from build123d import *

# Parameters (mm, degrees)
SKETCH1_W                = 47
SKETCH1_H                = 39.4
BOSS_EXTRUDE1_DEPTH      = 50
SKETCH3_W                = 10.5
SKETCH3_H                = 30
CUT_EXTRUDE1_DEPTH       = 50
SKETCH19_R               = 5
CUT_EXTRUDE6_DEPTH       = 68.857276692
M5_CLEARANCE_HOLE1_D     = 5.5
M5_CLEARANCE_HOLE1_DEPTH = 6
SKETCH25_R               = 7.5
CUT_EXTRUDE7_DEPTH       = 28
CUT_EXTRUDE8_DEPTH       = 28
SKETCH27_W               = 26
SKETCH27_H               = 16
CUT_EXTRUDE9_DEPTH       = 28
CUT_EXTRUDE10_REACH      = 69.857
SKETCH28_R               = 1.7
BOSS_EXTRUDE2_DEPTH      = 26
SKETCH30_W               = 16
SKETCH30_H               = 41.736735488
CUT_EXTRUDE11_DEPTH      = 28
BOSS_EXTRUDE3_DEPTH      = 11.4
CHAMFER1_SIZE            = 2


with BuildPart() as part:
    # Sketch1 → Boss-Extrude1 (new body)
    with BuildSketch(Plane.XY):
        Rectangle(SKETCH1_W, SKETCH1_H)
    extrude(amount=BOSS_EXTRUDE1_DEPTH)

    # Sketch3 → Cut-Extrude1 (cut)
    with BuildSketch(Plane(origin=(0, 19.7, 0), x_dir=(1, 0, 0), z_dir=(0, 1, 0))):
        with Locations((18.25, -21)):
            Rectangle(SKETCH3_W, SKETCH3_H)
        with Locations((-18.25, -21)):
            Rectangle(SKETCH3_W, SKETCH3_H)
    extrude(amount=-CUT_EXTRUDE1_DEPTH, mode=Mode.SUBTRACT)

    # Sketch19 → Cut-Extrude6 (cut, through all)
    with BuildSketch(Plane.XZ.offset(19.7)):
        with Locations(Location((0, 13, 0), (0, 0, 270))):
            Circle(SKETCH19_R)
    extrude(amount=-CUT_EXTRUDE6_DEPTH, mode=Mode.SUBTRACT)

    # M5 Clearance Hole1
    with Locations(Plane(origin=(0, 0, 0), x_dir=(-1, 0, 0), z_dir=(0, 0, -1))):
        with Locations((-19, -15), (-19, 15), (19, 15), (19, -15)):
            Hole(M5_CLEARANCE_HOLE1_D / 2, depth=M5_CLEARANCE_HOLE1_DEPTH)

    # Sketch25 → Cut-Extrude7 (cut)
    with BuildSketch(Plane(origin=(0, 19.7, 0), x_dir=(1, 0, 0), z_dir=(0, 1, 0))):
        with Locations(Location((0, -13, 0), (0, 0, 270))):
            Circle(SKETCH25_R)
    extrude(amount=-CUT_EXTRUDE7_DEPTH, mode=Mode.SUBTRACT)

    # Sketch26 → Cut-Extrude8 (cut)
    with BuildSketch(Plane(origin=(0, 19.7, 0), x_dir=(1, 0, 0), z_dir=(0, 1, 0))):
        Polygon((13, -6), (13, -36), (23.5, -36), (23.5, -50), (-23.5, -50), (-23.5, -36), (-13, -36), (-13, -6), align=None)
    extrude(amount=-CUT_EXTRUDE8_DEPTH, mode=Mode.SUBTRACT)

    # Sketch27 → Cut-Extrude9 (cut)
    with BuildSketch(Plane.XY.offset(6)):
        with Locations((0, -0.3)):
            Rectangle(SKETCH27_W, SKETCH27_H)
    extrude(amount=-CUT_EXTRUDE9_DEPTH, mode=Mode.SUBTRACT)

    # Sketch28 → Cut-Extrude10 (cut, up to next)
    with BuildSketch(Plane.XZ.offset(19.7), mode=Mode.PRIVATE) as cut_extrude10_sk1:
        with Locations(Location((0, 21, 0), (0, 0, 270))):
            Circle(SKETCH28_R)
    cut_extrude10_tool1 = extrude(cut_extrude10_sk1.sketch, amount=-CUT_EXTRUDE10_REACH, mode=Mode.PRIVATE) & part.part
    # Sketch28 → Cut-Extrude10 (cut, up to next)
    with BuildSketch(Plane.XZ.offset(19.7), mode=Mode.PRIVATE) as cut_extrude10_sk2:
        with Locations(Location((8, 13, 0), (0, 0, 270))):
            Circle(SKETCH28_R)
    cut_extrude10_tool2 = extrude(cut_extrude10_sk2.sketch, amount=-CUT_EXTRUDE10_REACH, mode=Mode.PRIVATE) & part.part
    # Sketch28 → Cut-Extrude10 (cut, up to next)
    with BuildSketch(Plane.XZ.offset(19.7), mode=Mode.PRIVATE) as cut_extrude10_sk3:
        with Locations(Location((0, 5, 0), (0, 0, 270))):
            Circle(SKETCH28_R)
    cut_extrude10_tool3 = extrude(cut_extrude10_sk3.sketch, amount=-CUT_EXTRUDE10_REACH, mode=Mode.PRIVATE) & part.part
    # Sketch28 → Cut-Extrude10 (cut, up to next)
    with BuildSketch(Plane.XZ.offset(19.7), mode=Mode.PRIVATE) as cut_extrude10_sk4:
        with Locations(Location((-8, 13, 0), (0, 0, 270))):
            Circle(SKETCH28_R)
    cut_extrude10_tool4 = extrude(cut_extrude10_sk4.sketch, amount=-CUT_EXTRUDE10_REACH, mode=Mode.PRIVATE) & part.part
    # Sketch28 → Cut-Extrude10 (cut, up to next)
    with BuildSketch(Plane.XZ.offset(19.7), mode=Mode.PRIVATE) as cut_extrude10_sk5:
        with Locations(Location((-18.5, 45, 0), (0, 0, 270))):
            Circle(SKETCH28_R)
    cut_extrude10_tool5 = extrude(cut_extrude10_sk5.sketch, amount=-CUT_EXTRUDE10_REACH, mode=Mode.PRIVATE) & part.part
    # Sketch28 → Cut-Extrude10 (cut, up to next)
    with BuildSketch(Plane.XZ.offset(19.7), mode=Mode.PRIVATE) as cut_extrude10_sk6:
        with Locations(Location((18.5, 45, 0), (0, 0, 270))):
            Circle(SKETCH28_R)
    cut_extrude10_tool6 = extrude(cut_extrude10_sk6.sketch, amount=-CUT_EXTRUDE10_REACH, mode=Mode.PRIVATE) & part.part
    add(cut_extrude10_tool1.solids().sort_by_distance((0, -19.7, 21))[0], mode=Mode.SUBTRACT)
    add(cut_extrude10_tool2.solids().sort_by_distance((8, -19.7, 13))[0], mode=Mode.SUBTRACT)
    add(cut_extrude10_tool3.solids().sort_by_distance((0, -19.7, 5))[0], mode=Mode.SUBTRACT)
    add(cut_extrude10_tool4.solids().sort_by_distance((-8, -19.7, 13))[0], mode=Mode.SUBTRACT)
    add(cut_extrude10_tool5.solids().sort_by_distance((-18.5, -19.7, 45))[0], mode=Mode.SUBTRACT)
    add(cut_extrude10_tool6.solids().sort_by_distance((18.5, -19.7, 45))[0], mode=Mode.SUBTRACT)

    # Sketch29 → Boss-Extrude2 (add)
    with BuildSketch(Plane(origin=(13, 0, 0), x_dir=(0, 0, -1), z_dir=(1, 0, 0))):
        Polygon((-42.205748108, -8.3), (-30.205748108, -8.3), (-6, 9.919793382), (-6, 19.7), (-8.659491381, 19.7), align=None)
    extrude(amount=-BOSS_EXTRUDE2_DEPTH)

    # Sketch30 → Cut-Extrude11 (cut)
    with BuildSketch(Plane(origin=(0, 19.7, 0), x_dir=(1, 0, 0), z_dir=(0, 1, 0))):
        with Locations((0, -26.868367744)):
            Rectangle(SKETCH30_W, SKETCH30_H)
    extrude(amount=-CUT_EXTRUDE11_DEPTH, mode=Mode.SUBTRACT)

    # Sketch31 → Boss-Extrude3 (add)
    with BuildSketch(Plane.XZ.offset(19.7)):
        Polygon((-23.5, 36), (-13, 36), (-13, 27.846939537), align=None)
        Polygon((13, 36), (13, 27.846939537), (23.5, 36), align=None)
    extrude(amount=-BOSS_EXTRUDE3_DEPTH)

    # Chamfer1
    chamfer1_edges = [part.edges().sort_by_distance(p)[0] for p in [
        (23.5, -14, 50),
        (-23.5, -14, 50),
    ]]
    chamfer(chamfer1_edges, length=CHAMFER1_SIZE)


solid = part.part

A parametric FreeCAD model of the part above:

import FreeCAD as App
import Part
import Sketcher
Q = App.Units.Quantity


def edges_at(feature, points):
    """Names of the edges that pass closest to the given points."""
    edges = feature.Shape.Edges
    near = lambda p: min(range(len(edges)), key=lambda i: edges[i].distToShape(Part.Vertex(*p))[0])
    return sorted({f"Edge{near(p) + 1}" for p in points})


def add_polygon(sketch, points):
    """Adds a closed chain of lines whose ends are joined by coincident constraints."""
    first, n = sketch.GeometryCount, len(points)
    for a, b in zip(points, points[1:] + points[:1]):
        sketch.addGeometry(Part.LineSegment(App.Vector(*a, 0), App.Vector(*b, 0)), False)
    for i in range(n):
        sketch.addConstraint(Sketcher.Constraint("Coincident", first + i, 2, first + (i + 1) % n, 1))

doc = App.newDocument("Part")
body = doc.addObject("PartDesign::Body", "Body")

# Sketch on XY plane
sketch1 = body.newObject("Sketcher::SketchObject", "Sketch")
sketch1.AttachmentSupport = (doc.getObject("XY_Plane"), [""])
sketch1.MapMode = "FlatFace"
add_polygon(sketch1, [(-24, 20), (-24, -20), (24, -20), (24, 20)])  # lines 0-3
sketch1.addConstraint(Sketcher.Constraint("Vertical", 0))
sketch1.addConstraint(Sketcher.Constraint("Horizontal", 1))
sketch1.addConstraint(Sketcher.Constraint("Vertical", 2))
sketch1.addConstraint(Sketcher.Constraint("Horizontal", 3))
sketch1.addConstraint(Sketcher.Constraint("Symmetric", 0, 2, 2, 2, -1, 1))
sketch1.addConstraint(Sketcher.Constraint("DistanceX", 1, 1, 1, 2, Q("47 mm")))
sketch1.addConstraint(Sketcher.Constraint("DistanceY", 0, 2, 0, 1, Q("39.4 mm")))
pad1 = body.newObject("PartDesign::Pad", "Pad")
pad1.Profile = sketch1
pad1.Length = 50

# Sketch on XZ plane
sketch2 = body.newObject("Sketcher::SketchObject", "Sketch001")
sketch2.AttachmentSupport = (doc.getObject("XZ_Plane"), [""])
sketch2.MapMode = "FlatFace"
sketch2.AttachmentOffset = App.Placement(App.Vector(0, 0, -19.7), App.Rotation())
add_polygon(sketch2, [(13, 6), (13, 36), (24, 36), (24, 6)])  # lines 0-3
add_polygon(sketch2, [(-24, 6), (-24, 36), (-13, 36), (-13, 6)])  # lines 4-7
sketch2.addConstraint(Sketcher.Constraint("Vertical", 0))
sketch2.addConstraint(Sketcher.Constraint("Horizontal", 1))
sketch2.addConstraint(Sketcher.Constraint("Vertical", 2))
sketch2.addConstraint(Sketcher.Constraint("Horizontal", 3))
sketch2.addConstraint(Sketcher.Constraint("Vertical", 4))
sketch2.addConstraint(Sketcher.Constraint("Horizontal", 5))
sketch2.addConstraint(Sketcher.Constraint("Vertical", 6))
sketch2.addConstraint(Sketcher.Constraint("Horizontal", 7))
sketch2.addConstraint(Sketcher.Constraint("Symmetric", 1, 2, 4, 2, -2))
sketch2.addConstraint(Sketcher.Constraint("Symmetric", 3, 2, 6, 2, -2))
sketch2.addConstraint(Sketcher.Constraint("DistanceY", 0, 1, 0, 2, Q("30 mm")))
sketch2.addConstraint(Sketcher.Constraint("DistanceX", 1, 1, 1, 2, Q("10.5 mm")))
sketch2.addConstraint(Sketcher.Constraint("DistanceX", -1, 1, 0, 2, Q("13 mm")))
sketch2.addConstraint(Sketcher.Constraint("DistanceY", -1, 1, 0, 2, Q("36 mm")))
pocket1 = body.newObject("PartDesign::Pocket", "Pocket")
pocket1.Profile = sketch2
pocket1.Length = 50
pocket1.Reversed = True

# Sketch on XZ plane
sketch3 = body.newObject("Sketcher::SketchObject", "Sketch002")
sketch3.AttachmentSupport = (doc.getObject("XZ_Plane"), [""])
sketch3.MapMode = "FlatFace"
sketch3.AttachmentOffset = App.Placement(App.Vector(0, 0, 19.7), App.Rotation())
sketch3.addGeometry(Part.Circle(App.Vector(0, 13, 0), App.Vector(0, 0, 1), 5), False)
sketch3.addConstraint(Sketcher.Constraint("PointOnObject", 0, 3, -2))
sketch3.addConstraint(Sketcher.Constraint("Diameter", 0, Q("10 mm")))
sketch3.addConstraint(Sketcher.Constraint("DistanceY", -1, 1, 0, 3, Q("13 mm")))
pocket2 = body.newObject("PartDesign::Pocket", "Pocket001")
pocket2.Profile = sketch3
pocket2.Type = "ThroughAll"

# Sketch on XY plane
sketch4 = body.newObject("Sketcher::SketchObject", "Sketch003")
sketch4.AttachmentSupport = (doc.getObject("XY_Plane"), [""])
sketch4.MapMode = "FlatFace"
sketch4.addGeometry(Part.Circle(App.Vector(19, -15, 0), App.Vector(0, 0, 1), 2.8), False)
sketch4.addGeometry(Part.Circle(App.Vector(19, 15, 0), App.Vector(0, 0, 1), 2.8), False)
sketch4.addGeometry(Part.Circle(App.Vector(-19, 15, 0), App.Vector(0, 0, 1), 2.8), False)
sketch4.addGeometry(Part.Circle(App.Vector(-19, -15, 0), App.Vector(0, 0, 1), 2.8), False)
sketch4.addConstraint(Sketcher.Constraint("Equal", 0, 1))
sketch4.addConstraint(Sketcher.Constraint("Equal", 1, 2))
sketch4.addConstraint(Sketcher.Constraint("Equal", 2, 3))
sketch4.addConstraint(Sketcher.Constraint("Symmetric", 0, 3, 2, 3, -1, 1))
sketch4.addConstraint(Sketcher.Constraint("Symmetric", 1, 3, 3, 3, -1, 1))
sketch4.addConstraint(Sketcher.Constraint("Symmetric", 1, 3, 2, 3, -2))
sketch4.addConstraint(Sketcher.Constraint("Diameter", 0, Q("5.5 mm")))
sketch4.addConstraint(Sketcher.Constraint("DistanceX", -1, 1, 0, 3, Q("19 mm")))
sketch4.addConstraint(Sketcher.Constraint("DistanceY", 0, 3, -1, 1, Q("15 mm")))
doc.recompute()
hole = body.newObject("PartDesign::Hole", "Hole")
hole.Profile = sketch4
hole.ThreadType = "None"
hole.Diameter = 5.5
hole.DepthType = "Dimension"
hole.Depth = 6
hole.DrillPoint = "Flat"
hole.Reversed = True

# Sketch on XZ plane
sketch5 = body.newObject("Sketcher::SketchObject", "Sketch004")
sketch5.AttachmentSupport = (doc.getObject("XZ_Plane"), [""])
sketch5.MapMode = "FlatFace"
sketch5.AttachmentOffset = App.Placement(App.Vector(0, 0, -19.7), App.Rotation())
sketch5.addGeometry(Part.Circle(App.Vector(0, 13, 0), App.Vector(0, 0, 1), 8), False)
sketch5.addConstraint(Sketcher.Constraint("PointOnObject", 0, 3, -2))
sketch5.addConstraint(Sketcher.Constraint("Diameter", 0, Q("15 mm")))
sketch5.addConstraint(Sketcher.Constraint("DistanceY", -1, 1, 0, 3, Q("13 mm")))
pocket3 = body.newObject("PartDesign::Pocket", "Pocket002")
pocket3.Profile = sketch5
pocket3.Length = 28
pocket3.Reversed = True

# Sketch on XZ plane
sketch6 = body.newObject("Sketcher::SketchObject", "Sketch005")
sketch6.AttachmentSupport = (doc.getObject("XZ_Plane"), [""])
sketch6.MapMode = "FlatFace"
sketch6.AttachmentOffset = App.Placement(App.Vector(0, 0, -19.7), App.Rotation())
add_polygon(sketch6, [(13, 36), (13, 6), (-13, 6), (-13, 36), (-24, 36), (-24, 50), (24, 50), (24, 36)])  # lines 0-7
sketch6.addConstraint(Sketcher.Constraint("Vertical", 0))
sketch6.addConstraint(Sketcher.Constraint("Horizontal", 1))
sketch6.addConstraint(Sketcher.Constraint("Vertical", 2))
sketch6.addConstraint(Sketcher.Constraint("Horizontal", 3))
sketch6.addConstraint(Sketcher.Constraint("Vertical", 4))
sketch6.addConstraint(Sketcher.Constraint("Horizontal", 5))
sketch6.addConstraint(Sketcher.Constraint("Vertical", 6))
sketch6.addConstraint(Sketcher.Constraint("Horizontal", 7))
sketch6.addConstraint(Sketcher.Constraint("Symmetric", 3, 2, 6, 2, -2))
sketch6.addConstraint(Sketcher.Constraint("Equal", 3, 7))
sketch6.addConstraint(Sketcher.Constraint("DistanceX", 1, 2, 1, 1, Q("26 mm")))
sketch6.addConstraint(Sketcher.Constraint("DistanceX", 5, 1, 5, 2, Q("47 mm")))
sketch6.addConstraint(Sketcher.Constraint("DistanceY", 0, 2, 0, 1, Q("30 mm")))
sketch6.addConstraint(Sketcher.Constraint("DistanceY", 4, 1, 4, 2, Q("14 mm")))
sketch6.addConstraint(Sketcher.Constraint("DistanceY", -1, 1, 0, 2, Q("6 mm")))
pocket4 = body.newObject("PartDesign::Pocket", "Pocket003")
pocket4.Profile = sketch6
pocket4.Length = 28
pocket4.Reversed = True

# Sketch on XY plane
sketch7 = body.newObject("Sketcher::SketchObject", "Sketch006")
sketch7.AttachmentSupport = (doc.getObject("XY_Plane"), [""])
sketch7.MapMode = "FlatFace"
sketch7.AttachmentOffset = App.Placement(App.Vector(0, 0, 6), App.Rotation())
add_polygon(sketch7, [(-13, 8), (-13, -8), (13, -8), (13, 8)])  # lines 0-3
sketch7.addConstraint(Sketcher.Constraint("Vertical", 0))
sketch7.addConstraint(Sketcher.Constraint("Horizontal", 1))
sketch7.addConstraint(Sketcher.Constraint("Vertical", 2))
sketch7.addConstraint(Sketcher.Constraint("Horizontal", 3))
sketch7.addConstraint(Sketcher.Constraint("DistanceX", 1, 1, 1, 2, Q("26 mm")))
sketch7.addConstraint(Sketcher.Constraint("DistanceY", 0, 2, 0, 1, Q("16 mm")))
sketch7.addConstraint(Sketcher.Constraint("DistanceX", 0, 2, -1, 1, Q("13 mm")))
sketch7.addConstraint(Sketcher.Constraint("DistanceY", 0, 2, -1, 1, Q("8.3 mm")))
pocket5 = body.newObject("PartDesign::Pocket", "Pocket004")
pocket5.Profile = sketch7
pocket5.Length = 28

# Sketch on XZ plane
sketch8 = body.newObject("Sketcher::SketchObject", "Sketch007")
sketch8.AttachmentSupport = (doc.getObject("XZ_Plane"), [""])
sketch8.MapMode = "FlatFace"
sketch8.AttachmentOffset = App.Placement(App.Vector(0, 0, 19.7), App.Rotation())
sketch8.addGeometry(Part.Circle(App.Vector(0, 21, 0), App.Vector(0, 0, 1), 1.7), False)
sketch8.addConstraint(Sketcher.Constraint("PointOnObject", 0, 3, -2))
sketch8.addConstraint(Sketcher.Constraint("Diameter", 0, Q("3.4 mm")))
sketch8.addConstraint(Sketcher.Constraint("DistanceY", -1, 1, 0, 3, Q("21 mm")))
pocket6 = body.newObject("PartDesign::Pocket", "Pocket005")
pocket6.Profile = sketch8
pocket6.Type = "UpToFirst"

# Sketch on XZ plane
sketch9 = body.newObject("Sketcher::SketchObject", "Sketch008")
sketch9.AttachmentSupport = (doc.getObject("XZ_Plane"), [""])
sketch9.MapMode = "FlatFace"
sketch9.AttachmentOffset = App.Placement(App.Vector(0, 0, 19.7), App.Rotation())
sketch9.addGeometry(Part.Circle(App.Vector(8, 13, 0), App.Vector(0, 0, 1), 1.7), False)
sketch9.addConstraint(Sketcher.Constraint("Diameter", 0, Q("3.4 mm")))
sketch9.addConstraint(Sketcher.Constraint("DistanceX", -1, 1, 0, 3, Q("8 mm")))
sketch9.addConstraint(Sketcher.Constraint("DistanceY", -1, 1, 0, 3, Q("13 mm")))
pocket7 = body.newObject("PartDesign::Pocket", "Pocket006")
pocket7.Profile = sketch9
pocket7.Type = "UpToFirst"

# Sketch on XZ plane
sketch10 = body.newObject("Sketcher::SketchObject", "Sketch009")
sketch10.AttachmentSupport = (doc.getObject("XZ_Plane"), [""])
sketch10.MapMode = "FlatFace"
sketch10.AttachmentOffset = App.Placement(App.Vector(0, 0, 19.7), App.Rotation())
sketch10.addGeometry(Part.Circle(App.Vector(0, 5, 0), App.Vector(0, 0, 1), 1.7), False)
sketch10.addConstraint(Sketcher.Constraint("PointOnObject", 0, 3, -2))
sketch10.addConstraint(Sketcher.Constraint("Diameter", 0, Q("3.4 mm")))
sketch10.addConstraint(Sketcher.Constraint("DistanceY", -1, 1, 0, 3, Q("5 mm")))
pocket8 = body.newObject("PartDesign::Pocket", "Pocket007")
pocket8.Profile = sketch10
pocket8.Type = "UpToFirst"

# Sketch on XZ plane
sketch11 = body.newObject("Sketcher::SketchObject", "Sketch010")
sketch11.AttachmentSupport = (doc.getObject("XZ_Plane"), [""])
sketch11.MapMode = "FlatFace"
sketch11.AttachmentOffset = App.Placement(App.Vector(0, 0, 19.7), App.Rotation())
sketch11.addGeometry(Part.Circle(App.Vector(-8, 13, 0), App.Vector(0, 0, 1), 1.7), False)
sketch11.addConstraint(Sketcher.Constraint("Diameter", 0, Q("3.4 mm")))
sketch11.addConstraint(Sketcher.Constraint("DistanceX", 0, 3, -1, 1, Q("8 mm")))
sketch11.addConstraint(Sketcher.Constraint("DistanceY", -1, 1, 0, 3, Q("13 mm")))
pocket9 = body.newObject("PartDesign::Pocket", "Pocket008")
pocket9.Profile = sketch11
pocket9.Type = "UpToFirst"

# Sketch on XZ plane
sketch12 = body.newObject("Sketcher::SketchObject", "Sketch011")
sketch12.AttachmentSupport = (doc.getObject("XZ_Plane"), [""])
sketch12.MapMode = "FlatFace"
sketch12.AttachmentOffset = App.Placement(App.Vector(0, 0, 19.7), App.Rotation())
sketch12.addGeometry(Part.Circle(App.Vector(-18.5, 45, 0), App.Vector(0, 0, 1), 1.7), False)
sketch12.addConstraint(Sketcher.Constraint("Diameter", 0, Q("3.4 mm")))
sketch12.addConstraint(Sketcher.Constraint("DistanceY", -1, 1, 0, 3, Q("45 mm")))
sketch12.addConstraint(Sketcher.Constraint("DistanceX", 0, 3, -1, 1, Q("18.5 mm")))
pocket10 = body.newObject("PartDesign::Pocket", "Pocket009")
pocket10.Profile = sketch12
pocket10.Type = "UpToFirst"

# Sketch on XZ plane
sketch13 = body.newObject("Sketcher::SketchObject", "Sketch012")
sketch13.AttachmentSupport = (doc.getObject("XZ_Plane"), [""])
sketch13.MapMode = "FlatFace"
sketch13.AttachmentOffset = App.Placement(App.Vector(0, 0, 19.7), App.Rotation())
sketch13.addGeometry(Part.Circle(App.Vector(18.5, 45, 0), App.Vector(0, 0, 1), 1.7), False)
sketch13.addConstraint(Sketcher.Constraint("Diameter", 0, Q("3.4 mm")))
sketch13.addConstraint(Sketcher.Constraint("DistanceY", -1, 1, 0, 3, Q("45 mm")))
sketch13.addConstraint(Sketcher.Constraint("DistanceX", -1, 1, 0, 3, Q("18.5 mm")))
pocket11 = body.newObject("PartDesign::Pocket", "Pocket010")
pocket11.Profile = sketch13
pocket11.Type = "UpToFirst"

# Sketch on YZ plane
sketch14 = body.newObject("Sketcher::SketchObject", "Sketch013")
sketch14.AttachmentSupport = (doc.getObject("YZ_Plane"), [""])
sketch14.MapMode = "FlatFace"
sketch14.AttachmentOffset = App.Placement(App.Vector(0, 0, 13), App.Rotation())
add_polygon(sketch14, [(-8.3, 42.2), (-8.3, 30.2), (9.9, 6), (19.7, 6), (19.7, 8.7)])  # lines 0-4
sketch14.addConstraint(Sketcher.Constraint("Vertical", 0))
sketch14.addConstraint(Sketcher.Constraint("Horizontal", 2))
sketch14.addConstraint(Sketcher.Constraint("Vertical", 3))
sketch14.addConstraint(Sketcher.Constraint("DistanceY", 0, 2, 0, 1, Q("12 mm")))
sketch14.addConstraint(Sketcher.Constraint("DistanceY", -1, 1, 1, 2, Q("6 mm")))
sketch14.addConstraint(Sketcher.Constraint("DistanceX", 0, 2, 2, 2, Q("28 mm")))
sketch14.addConstraint(Sketcher.Constraint("DistanceX", 0, 2, -1, 1, Q("8.3 mm")))
sketch14.addConstraint(Sketcher.Constraint("DistanceY", 3, 1, 3, 2, Q("2.659491 mm")))
sketch14.addConstraint(Sketcher.Constraint("Distance", 1, Q("30.29652 mm")))
sketch14.addConstraint(Sketcher.Constraint("DistanceX", 2, 1, 2, 2, Q("9.780207 mm")))
pad2 = body.newObject("PartDesign::Pad", "Pad001")
pad2.Profile = sketch14
pad2.Length = 26
pad2.Reversed = True

# Sketch on XZ plane
sketch15 = body.newObject("Sketcher::SketchObject", "Sketch014")
sketch15.AttachmentSupport = (doc.getObject("XZ_Plane"), [""])
sketch15.MapMode = "FlatFace"
sketch15.AttachmentOffset = App.Placement(App.Vector(0, 0, -19.7), App.Rotation())
add_polygon(sketch15, [(-8, 6), (-8, 48), (8, 48), (8, 6)])  # lines 0-3
sketch15.addConstraint(Sketcher.Constraint("Vertical", 0))
sketch15.addConstraint(Sketcher.Constraint("Horizontal", 1))
sketch15.addConstraint(Sketcher.Constraint("Vertical", 2))
sketch15.addConstraint(Sketcher.Constraint("Horizontal", 3))
sketch15.addConstraint(Sketcher.Constraint("DistanceX", 1, 1, 1, 2, Q("16 mm")))
sketch15.addConstraint(Sketcher.Constraint("DistanceX", 0, 2, -1, 1, Q("8 mm")))
sketch15.addConstraint(Sketcher.Constraint("DistanceY", -1, 1, 2, 2, Q("6 mm")))
sketch15.addConstraint(Sketcher.Constraint("DistanceY", 0, 1, 0, 2, Q("41.736735 mm")))
pocket12 = body.newObject("PartDesign::Pocket", "Pocket011")
pocket12.Profile = sketch15
pocket12.Length = 28
pocket12.Reversed = True

# Sketch on XZ plane
sketch16 = body.newObject("Sketcher::SketchObject", "Sketch015")
sketch16.AttachmentSupport = (doc.getObject("XZ_Plane"), [""])
sketch16.MapMode = "FlatFace"
sketch16.AttachmentOffset = App.Placement(App.Vector(0, 0, 19.7), App.Rotation())
add_polygon(sketch16, [(-13, 36), (-24, 36), (-13, 28)])  # lines 0-2
add_polygon(sketch16, [(13, 36), (13, 28), (24, 36)])  # lines 3-5
sketch16.addConstraint(Sketcher.Constraint("Horizontal", 0))
sketch16.addConstraint(Sketcher.Constraint("Vertical", 2))
sketch16.addConstraint(Sketcher.Constraint("Vertical", 3))
sketch16.addConstraint(Sketcher.Constraint("Horizontal", 5))
sketch16.addConstraint(Sketcher.Constraint("Symmetric", 1, 2, 3, 2, -2))
sketch16.addConstraint(Sketcher.Constraint("Symmetric", 0, 2, 4, 2, -2))
sketch16.addConstraint(Sketcher.Constraint("DistanceX", 0, 2, 0, 1, Q("10.5 mm")))
sketch16.addConstraint(Sketcher.Constraint("DistanceY", -1, 1, 0, 2, Q("36 mm")))
sketch16.addConstraint(Sketcher.Constraint("DistanceX", 1, 2, -1, 1, Q("13 mm")))
sketch16.addConstraint(Sketcher.Constraint("DistanceY", 2, 1, 2, 2, Q("8.15306 mm")))
pad3 = body.newObject("PartDesign::Pad", "Pad002")
pad3.Profile = sketch16
pad3.Length = 11.4
pad3.Reversed = True
doc.recompute()

chamfer = body.newObject("PartDesign::Chamfer", "Chamfer")
chamfer.Base = (pad3, edges_at(pad3, [(23.5, -14, 50), (-23.5, -14, 50)]))
chamfer.Size = 2

doc.recompute()
